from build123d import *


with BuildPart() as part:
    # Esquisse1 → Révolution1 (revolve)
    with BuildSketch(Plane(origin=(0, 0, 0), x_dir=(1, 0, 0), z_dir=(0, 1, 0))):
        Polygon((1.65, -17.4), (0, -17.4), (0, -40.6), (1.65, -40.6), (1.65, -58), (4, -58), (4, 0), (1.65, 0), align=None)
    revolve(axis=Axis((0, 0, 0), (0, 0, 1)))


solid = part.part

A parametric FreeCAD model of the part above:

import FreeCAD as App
import Part
import Sketcher
Q = App.Units.Quantity


def add_polygon(sketch, points):
    """Adds a closed chain of lines whose ends are joined by coincident constraints."""
    first, n = sketch.GeometryCount, len(points)
    for a, b in zip(points, points[1:] + points[:1]):
        sketch.addGeometry(Part.LineSegment(App.Vector(*a, 0), App.Vector(*b, 0)), False)
    for i in range(n):
        sketch.addConstraint(Sketcher.Constraint("Coincident", first + i, 2, first + (i + 1) % n, 1))

doc = App.newDocument("Part")
body = doc.addObject("PartDesign::Body", "Body")

# Sketch on XZ plane
sketch1 = body.newObject("Sketcher::SketchObject", "Sketch")
sketch1.AttachmentSupport = (doc.getObject("XZ_Plane"), [""])
sketch1.MapMode = "FlatFace"
add_polygon(sketch1, [(1.65, 17.4), (0, 17.4), (0, 40.6), (1.65, 40.6), (1.65, 58), (4, 58), (4, 0), (1.65, 0)])  # lines 0-7
sketch1.addConstraint([
    Sketcher.Constraint("Horizontal", 0),
    Sketcher.Constraint("Vertical", 1),
    Sketcher.Constraint("Horizontal", 2),
    Sketcher.Constraint("Vertical", 3),
    Sketcher.Constraint("Horizontal", 4),
    Sketcher.Constraint("Vertical", 5),
    Sketcher.Constraint("Horizontal", 6),
    Sketcher.Constraint("Vertical", 7),
    Sketcher.Constraint("PointOnObject", 0, 2, -2),
    Sketcher.Constraint("PointOnObject", 5, 2, -1),
    Sketcher.Constraint("Vertical", 3, 2, 6, 2),
    Sketcher.Constraint("Equal", 3, 7),
    Sketcher.Constraint("DistanceY", 5, 2, 5, 1, Q("58 mm")),
    Sketcher.Constraint("DistanceY", 1, 1, 1, 2, Q("23.2 mm")),
    Sketcher.Constraint("DistanceX", -1, 1, 4, 2, Q("4 mm")),
    Sketcher.Constraint("DistanceX", 0, 2, 0, 1, Q("1.65 mm")),
])
revolution = body.newObject("PartDesign::Revolution", "Revolution")
revolution.Profile = sketch1
revolution.ReferenceAxis = (sketch1, ["V_Axis"])
revolution.Angle = 360

doc.recompute()
